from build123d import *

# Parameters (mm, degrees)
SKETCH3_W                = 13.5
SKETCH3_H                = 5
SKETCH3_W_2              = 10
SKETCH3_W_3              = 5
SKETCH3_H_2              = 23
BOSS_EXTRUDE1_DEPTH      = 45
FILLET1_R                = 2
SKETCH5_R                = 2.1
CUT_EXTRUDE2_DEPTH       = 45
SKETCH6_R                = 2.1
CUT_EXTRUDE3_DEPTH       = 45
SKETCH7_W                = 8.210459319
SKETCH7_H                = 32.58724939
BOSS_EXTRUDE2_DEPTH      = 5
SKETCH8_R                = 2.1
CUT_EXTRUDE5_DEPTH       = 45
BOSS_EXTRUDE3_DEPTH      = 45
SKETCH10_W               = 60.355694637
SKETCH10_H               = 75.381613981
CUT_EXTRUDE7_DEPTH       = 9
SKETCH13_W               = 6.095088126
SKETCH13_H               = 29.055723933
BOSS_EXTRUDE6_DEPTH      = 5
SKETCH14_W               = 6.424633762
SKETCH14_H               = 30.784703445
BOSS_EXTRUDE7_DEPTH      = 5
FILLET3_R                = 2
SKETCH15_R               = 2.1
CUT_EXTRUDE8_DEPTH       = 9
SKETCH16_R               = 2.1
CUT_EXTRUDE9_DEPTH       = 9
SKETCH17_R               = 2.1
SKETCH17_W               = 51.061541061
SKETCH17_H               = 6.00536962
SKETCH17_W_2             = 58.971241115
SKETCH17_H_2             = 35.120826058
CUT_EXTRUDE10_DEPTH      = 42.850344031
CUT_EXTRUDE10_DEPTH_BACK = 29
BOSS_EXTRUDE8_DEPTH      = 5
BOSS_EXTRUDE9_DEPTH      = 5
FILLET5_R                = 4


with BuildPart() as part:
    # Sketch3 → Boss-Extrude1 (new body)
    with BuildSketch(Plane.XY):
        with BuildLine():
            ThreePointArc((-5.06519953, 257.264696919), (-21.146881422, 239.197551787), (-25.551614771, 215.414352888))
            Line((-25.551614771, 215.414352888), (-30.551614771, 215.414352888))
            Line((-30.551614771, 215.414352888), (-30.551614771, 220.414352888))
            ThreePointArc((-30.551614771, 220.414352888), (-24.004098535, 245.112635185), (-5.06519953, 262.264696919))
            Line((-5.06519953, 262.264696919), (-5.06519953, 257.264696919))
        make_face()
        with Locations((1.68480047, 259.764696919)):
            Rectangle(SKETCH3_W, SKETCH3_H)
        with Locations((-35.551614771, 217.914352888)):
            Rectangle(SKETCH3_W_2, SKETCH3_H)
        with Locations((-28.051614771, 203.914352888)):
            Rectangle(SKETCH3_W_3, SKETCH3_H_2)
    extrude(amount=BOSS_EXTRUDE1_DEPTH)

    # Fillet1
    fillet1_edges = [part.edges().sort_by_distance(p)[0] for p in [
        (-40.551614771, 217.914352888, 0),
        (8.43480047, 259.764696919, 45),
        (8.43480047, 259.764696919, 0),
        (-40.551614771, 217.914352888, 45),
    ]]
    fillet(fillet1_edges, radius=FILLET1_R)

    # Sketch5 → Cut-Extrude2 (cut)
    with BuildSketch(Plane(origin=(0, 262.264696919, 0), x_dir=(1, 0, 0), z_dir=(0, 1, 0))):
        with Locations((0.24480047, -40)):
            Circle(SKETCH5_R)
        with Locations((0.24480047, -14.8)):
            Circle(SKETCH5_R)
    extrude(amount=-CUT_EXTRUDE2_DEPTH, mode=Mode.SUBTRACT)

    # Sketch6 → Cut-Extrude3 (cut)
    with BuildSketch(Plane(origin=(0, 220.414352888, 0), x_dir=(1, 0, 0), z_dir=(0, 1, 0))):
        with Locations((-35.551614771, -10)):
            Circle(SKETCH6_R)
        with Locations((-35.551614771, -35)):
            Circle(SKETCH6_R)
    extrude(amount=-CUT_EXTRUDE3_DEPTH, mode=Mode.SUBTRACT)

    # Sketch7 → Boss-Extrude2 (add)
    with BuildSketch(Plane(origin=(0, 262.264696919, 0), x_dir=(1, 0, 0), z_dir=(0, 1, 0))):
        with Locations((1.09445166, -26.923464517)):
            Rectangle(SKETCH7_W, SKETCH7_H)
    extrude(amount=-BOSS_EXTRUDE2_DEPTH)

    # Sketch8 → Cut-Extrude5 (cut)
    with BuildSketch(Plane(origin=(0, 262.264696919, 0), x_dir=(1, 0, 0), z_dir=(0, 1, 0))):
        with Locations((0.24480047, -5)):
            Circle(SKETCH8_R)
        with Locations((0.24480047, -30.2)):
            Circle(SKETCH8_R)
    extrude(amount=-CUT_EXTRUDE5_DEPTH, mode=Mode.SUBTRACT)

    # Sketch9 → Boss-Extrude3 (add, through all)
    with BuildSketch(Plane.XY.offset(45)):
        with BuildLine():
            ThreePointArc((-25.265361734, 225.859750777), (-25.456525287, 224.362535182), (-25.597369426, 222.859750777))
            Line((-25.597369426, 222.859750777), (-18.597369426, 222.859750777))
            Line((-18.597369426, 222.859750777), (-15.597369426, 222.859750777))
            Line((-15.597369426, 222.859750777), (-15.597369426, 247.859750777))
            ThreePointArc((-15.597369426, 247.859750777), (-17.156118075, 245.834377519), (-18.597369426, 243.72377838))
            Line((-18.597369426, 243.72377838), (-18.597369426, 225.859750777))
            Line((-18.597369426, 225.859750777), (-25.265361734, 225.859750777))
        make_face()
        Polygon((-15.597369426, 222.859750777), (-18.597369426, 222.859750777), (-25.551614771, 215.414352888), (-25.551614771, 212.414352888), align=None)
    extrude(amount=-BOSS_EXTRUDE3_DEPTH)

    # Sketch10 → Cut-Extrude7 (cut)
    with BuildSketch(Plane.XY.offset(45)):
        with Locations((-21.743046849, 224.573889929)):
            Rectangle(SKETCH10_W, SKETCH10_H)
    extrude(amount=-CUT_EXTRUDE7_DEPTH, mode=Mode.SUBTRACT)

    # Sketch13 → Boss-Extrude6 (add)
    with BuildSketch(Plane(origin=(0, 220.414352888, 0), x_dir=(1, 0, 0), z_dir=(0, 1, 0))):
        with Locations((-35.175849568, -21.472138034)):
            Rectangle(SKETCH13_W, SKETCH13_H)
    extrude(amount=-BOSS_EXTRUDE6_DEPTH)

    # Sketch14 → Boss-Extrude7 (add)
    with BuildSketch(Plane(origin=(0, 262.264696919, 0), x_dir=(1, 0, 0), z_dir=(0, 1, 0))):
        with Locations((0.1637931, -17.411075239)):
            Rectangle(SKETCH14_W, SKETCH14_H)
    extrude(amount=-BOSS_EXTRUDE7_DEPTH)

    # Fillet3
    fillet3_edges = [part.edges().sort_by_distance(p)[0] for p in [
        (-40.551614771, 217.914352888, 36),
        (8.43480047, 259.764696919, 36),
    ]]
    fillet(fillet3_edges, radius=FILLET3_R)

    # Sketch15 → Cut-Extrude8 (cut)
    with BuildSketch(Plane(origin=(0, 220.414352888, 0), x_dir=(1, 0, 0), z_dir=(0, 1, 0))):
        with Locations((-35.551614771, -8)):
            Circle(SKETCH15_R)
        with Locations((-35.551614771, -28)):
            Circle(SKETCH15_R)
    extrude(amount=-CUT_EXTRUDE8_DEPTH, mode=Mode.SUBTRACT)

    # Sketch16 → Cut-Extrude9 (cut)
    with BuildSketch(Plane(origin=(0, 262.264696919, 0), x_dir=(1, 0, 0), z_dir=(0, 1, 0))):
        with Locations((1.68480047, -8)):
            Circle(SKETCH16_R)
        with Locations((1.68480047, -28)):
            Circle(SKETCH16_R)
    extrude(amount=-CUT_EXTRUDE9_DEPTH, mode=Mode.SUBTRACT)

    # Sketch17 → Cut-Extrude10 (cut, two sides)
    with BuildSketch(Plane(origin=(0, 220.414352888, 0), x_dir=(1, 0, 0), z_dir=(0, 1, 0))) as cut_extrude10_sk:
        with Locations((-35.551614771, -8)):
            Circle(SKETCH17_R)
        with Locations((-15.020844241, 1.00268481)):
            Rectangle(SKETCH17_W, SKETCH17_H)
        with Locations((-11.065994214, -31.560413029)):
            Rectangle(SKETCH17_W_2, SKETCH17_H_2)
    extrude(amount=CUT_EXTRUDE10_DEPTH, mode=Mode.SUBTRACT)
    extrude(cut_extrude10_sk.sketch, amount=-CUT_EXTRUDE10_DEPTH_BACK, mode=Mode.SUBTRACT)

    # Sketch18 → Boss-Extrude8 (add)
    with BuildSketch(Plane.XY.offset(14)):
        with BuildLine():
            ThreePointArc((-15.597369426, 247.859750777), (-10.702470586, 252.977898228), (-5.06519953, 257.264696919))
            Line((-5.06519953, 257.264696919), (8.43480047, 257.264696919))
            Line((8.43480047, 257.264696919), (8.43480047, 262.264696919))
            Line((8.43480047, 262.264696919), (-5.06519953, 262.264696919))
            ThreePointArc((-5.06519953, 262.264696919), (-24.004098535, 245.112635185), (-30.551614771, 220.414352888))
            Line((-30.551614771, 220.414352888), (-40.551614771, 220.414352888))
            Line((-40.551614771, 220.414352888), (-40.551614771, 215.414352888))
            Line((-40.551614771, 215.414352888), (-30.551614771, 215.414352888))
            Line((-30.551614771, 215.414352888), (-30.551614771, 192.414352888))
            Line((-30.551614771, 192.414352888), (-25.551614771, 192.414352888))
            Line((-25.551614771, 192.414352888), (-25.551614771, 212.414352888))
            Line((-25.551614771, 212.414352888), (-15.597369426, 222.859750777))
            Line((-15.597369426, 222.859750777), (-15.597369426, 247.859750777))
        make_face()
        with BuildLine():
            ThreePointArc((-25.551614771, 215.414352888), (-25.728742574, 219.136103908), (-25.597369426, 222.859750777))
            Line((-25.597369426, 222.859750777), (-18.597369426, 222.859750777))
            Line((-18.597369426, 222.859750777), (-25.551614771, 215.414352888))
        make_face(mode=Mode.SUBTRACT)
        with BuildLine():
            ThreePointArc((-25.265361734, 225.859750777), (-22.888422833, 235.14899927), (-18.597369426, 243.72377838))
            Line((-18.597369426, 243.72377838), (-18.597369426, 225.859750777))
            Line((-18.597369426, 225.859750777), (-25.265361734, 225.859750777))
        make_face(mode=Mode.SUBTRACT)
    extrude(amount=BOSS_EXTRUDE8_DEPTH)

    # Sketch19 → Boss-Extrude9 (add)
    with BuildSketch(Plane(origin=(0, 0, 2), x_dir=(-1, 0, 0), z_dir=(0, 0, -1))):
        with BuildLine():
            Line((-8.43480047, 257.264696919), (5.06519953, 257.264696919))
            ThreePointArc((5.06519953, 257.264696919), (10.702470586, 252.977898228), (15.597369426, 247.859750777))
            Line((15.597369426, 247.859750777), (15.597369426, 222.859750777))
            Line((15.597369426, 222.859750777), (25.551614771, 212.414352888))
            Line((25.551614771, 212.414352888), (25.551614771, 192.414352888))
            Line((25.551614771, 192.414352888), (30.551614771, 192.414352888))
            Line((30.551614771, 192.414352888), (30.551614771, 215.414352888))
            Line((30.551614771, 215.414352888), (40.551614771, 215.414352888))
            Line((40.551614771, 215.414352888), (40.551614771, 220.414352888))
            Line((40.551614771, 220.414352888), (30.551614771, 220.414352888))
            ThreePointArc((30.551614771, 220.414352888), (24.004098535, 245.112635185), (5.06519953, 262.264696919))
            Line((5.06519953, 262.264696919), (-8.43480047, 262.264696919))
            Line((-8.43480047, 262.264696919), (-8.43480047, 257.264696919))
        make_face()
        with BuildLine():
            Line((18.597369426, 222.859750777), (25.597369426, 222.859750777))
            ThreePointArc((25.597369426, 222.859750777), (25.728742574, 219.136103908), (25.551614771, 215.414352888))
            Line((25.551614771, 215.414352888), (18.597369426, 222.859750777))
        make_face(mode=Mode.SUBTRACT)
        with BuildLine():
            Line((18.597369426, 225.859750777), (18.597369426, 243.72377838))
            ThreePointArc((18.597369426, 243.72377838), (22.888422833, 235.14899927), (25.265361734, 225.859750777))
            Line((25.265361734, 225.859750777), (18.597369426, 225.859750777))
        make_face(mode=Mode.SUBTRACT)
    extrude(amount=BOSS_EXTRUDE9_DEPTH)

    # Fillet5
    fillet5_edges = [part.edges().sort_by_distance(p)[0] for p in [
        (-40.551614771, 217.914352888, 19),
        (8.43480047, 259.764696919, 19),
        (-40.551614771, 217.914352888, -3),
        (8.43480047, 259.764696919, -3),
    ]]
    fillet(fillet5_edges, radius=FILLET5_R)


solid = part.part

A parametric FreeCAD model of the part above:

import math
import FreeCAD as App
import Part
import Sketcher

V = App.Vector
Q = App.Units.Quantity


def edges_at(feature, points):
    """Names of the edges that pass closest to the given points."""
    edges = feature.Shape.Edges
    near = lambda p: min(range(len(edges)), key=lambda i: edges[i].distToShape(Part.Vertex(*p))[0])
    return sorted({f"Edge{near(p) + 1}" for p in points})

doc = App.newDocument("Part")
body = doc.addObject("PartDesign::Body", "Body")

# Sketch on XY plane
sketch1 = body.newObject("Sketcher::SketchObject", "Sketch")
sketch1.AttachmentSupport = (doc.getObject("XY_Plane"), [""])
sketch1.MapMode = "FlatFace"
sketch1.addGeometry(Part.ArcOfCircle(Part.Circle(V(19.270408, 219.41264, 0), V(0, 0, 1), 45), math.radians(122.73752), math.radians(185.097499)), False)
sketch1.addGeometry(Part.LineSegment(V(-5.0652, 257.264697, 0), V(8.4348, 257.264697, 0)), False)
sketch1.addGeometry(Part.LineSegment(V(8.4348, 257.264697, 0), V(8.4348, 262.264697, 0)), False)
sketch1.addGeometry(Part.LineSegment(V(8.4348, 262.264697, 0), V(-5.0652, 262.264697, 0)), False)
sketch1.addGeometry(Part.ArcOfCircle(Part.Circle(V(14.429822, 221.706786, 0), V(0, 0, 1), 45), math.radians(115.672255), math.radians(181.645803)), False)
sketch1.addGeometry(Part.LineSegment(V(-30.551615, 220.414353, 0), V(-40.551615, 220.414353, 0)), False)
sketch1.addGeometry(Part.LineSegment(V(-40.551615, 220.414353, 0), V(-40.551615, 215.414353, 0)), False)
sketch1.addGeometry(Part.LineSegment(V(-40.551615, 215.414353, 0), V(-30.551615, 215.414353, 0)), False)
sketch1.addGeometry(Part.LineSegment(V(-30.551615, 215.414353, 0), V(-30.551615, 192.414353, 0)), False)
sketch1.addGeometry(Part.LineSegment(V(-30.551615, 192.414353, 0), V(-25.551615, 192.414353, 0)), False)
sketch1.addGeometry(Part.LineSegment(V(-25.551615, 192.414353, 0), V(-25.551615, 215.414353, 0)), False)
sketch1.addConstraint(Sketcher.Constraint("Coincident", 0, 1, 1, 1))
sketch1.addConstraint(Sketcher.Constraint("Coincident", 1, 2, 2, 1))
sketch1.addConstraint(Sketcher.Constraint("Coincident", 2, 2, 3, 1))
sketch1.addConstraint(Sketcher.Constraint("Coincident", 3, 2, 4, 1))
sketch1.addConstraint(Sketcher.Constraint("Coincident", 4, 2, 5, 1))
sketch1.addConstraint(Sketcher.Constraint("Coincident", 5, 2, 6, 1))
sketch1.addConstraint(Sketcher.Constraint("Coincident", 6, 2, 7, 1))
sketch1.addConstraint(Sketcher.Constraint("Coincident", 7, 2, 8, 1))
sketch1.addConstraint(Sketcher.Constraint("Coincident", 8, 2, 9, 1))
sketch1.addConstraint(Sketcher.Constraint("Coincident", 9, 2, 10, 1))
sketch1.addConstraint(Sketcher.Constraint("Coincident", 10, 2, 0, 2))
sketch1.addConstraint(Sketcher.Constraint("Horizontal", 1))
sketch1.addConstraint(Sketcher.Constraint("Vertical", 2))
sketch1.addConstraint(Sketcher.Constraint("Horizontal", 3))
sketch1.addConstraint(Sketcher.Constraint("Horizontal", 5))
sketch1.addConstraint(Sketcher.Constraint("Vertical", 6))
sketch1.addConstraint(Sketcher.Constraint("Horizontal", 7))
sketch1.addConstraint(Sketcher.Constraint("Vertical", 8))
sketch1.addConstraint(Sketcher.Constraint("Horizontal", 9))
sketch1.addConstraint(Sketcher.Constraint("Vertical", 10))
sketch1.addConstraint(Sketcher.Constraint("Equal", 0, 4))
sketch1.addConstraint(Sketcher.Constraint("Horizontal", 7, 2, 10, 2))
sketch1.addConstraint(Sketcher.Constraint("Vertical", 0, 1, 3, 2))
sketch1.addConstraint(Sketcher.Constraint("Vertical", 4, 2, 7, 2))
sketch1.addConstraint(Sketcher.Constraint("Equal", 9, 2))
sketch1.addConstraint(Sketcher.Constraint("Equal", 2, 6))
sketch1.addConstraint(Sketcher.Constraint("Radius", 0, Q("45 mm")))
sketch1.addConstraint(Sketcher.Constraint("DistanceX", 5, 2, 5, 1, Q("10 mm")))
sketch1.addConstraint(Sketcher.Constraint("DistanceX", 9, 1, 9, 2, Q("5 mm")))
sketch1.addConstraint(Sketcher.Constraint("DistanceY", 8, 2, 8, 1, Q("23 mm")))
sketch1.addConstraint(Sketcher.Constraint("DistanceX", 1, 1, 1, 2, Q("13.5 mm")))
sketch1.addConstraint(Sketcher.Constraint("DistanceX", 0, 1, -1, 1, Q("5.0652 mm")))
sketch1.addConstraint(Sketcher.Constraint("DistanceY", -1, 1, 0, 3, Q("219.41264 mm")))
sketch1.addConstraint(Sketcher.Constraint("DistanceX", -1, 1, 4, 3, Q("14.429822 mm")))
sketch1.addConstraint(Sketcher.Constraint("DistanceX", -1, 1, 0, 3, Q("19.270408 mm")))
pad1 = body.newObject("PartDesign::Pad", "Pad")
pad1.Profile = sketch1
pad1.Length = 45
doc.recompute()

fillet = body.newObject("PartDesign::Fillet", "Fillet")
fillet.Base = (pad1, edges_at(pad1, [
    (-40.552, 217.914, 0),
    (8.435, 259.765, 45),
    (8.435, 259.765, 0),
    (-40.552, 217.914, 45),
]))
fillet.Radius = 2

# Sketch on XZ plane
sketch2 = body.newObject("Sketcher::SketchObject", "Sketch001")
sketch2.AttachmentSupport = (doc.getObject("XZ_Plane"), [""])
sketch2.MapMode = "FlatFace"
sketch2.AttachmentOffset = App.Placement(V(0, 0, -262.264697), App.Rotation())
sketch2.addGeometry(Part.Circle(V(0.2448, 40, 0), V(0, 0, 1), 2.1), False)
sketch2.addGeometry(Part.Circle(V(0.2448, 14.8, 0), V(0, 0, 1), 2.1), False)
sketch2.addConstraint(Sketcher.Constraint("Equal", 0, 1))
sketch2.addConstraint(Sketcher.Constraint("Vertical", 0, 3, 1, 3))
sketch2.addConstraint(Sketcher.Constraint("Diameter", 0, Q("4.2 mm")))
sketch2.addConstraint(Sketcher.Constraint("DistanceY", -1, 1, 0, 3, Q("40 mm")))
sketch2.addConstraint(Sketcher.Constraint("DistanceY", -1, 1, 1, 3, Q("14.8 mm")))
sketch2.addConstraint(Sketcher.Constraint("DistanceX", -1, 1, 0, 3, Q("0.2448 mm")))
pocket1 = body.newObject("PartDesign::Pocket", "Pocket")
pocket1.Profile = sketch2
pocket1.Length = 45
pocket1.Reversed = True

# Sketch on XZ plane
sketch3 = body.newObject("Sketcher::SketchObject", "Sketch002")
sketch3.AttachmentSupport = (doc.getObject("XZ_Plane"), [""])
sketch3.MapMode = "FlatFace"
sketch3.AttachmentOffset = App.Placement(V(0, 0, -220.414353), App.Rotation())
sketch3.addGeometry(Part.Circle(V(-35.551615, 10, 0), V(0, 0, 1), 2.1), False)
sketch3.addGeometry(Part.Circle(V(-35.551615, 35, 0), V(0, 0, 1), 2.1), False)
sketch3.addConstraint(Sketcher.Constraint("Equal", 0, 1))
sketch3.addConstraint(Sketcher.Constraint("Vertical", 0, 3, 1, 3))
sketch3.addConstraint(Sketcher.Constraint("Diameter", 0, Q("4.2 mm")))
sketch3.addConstraint(Sketcher.Constraint("DistanceY", -1, 1, 0, 3, Q("10 mm")))
sketch3.addConstraint(Sketcher.Constraint("DistanceY", -1, 1, 1, 3, Q("35 mm")))
sketch3.addConstraint(Sketcher.Constraint("DistanceX", 0, 3, -1, 1, Q("35.551615 mm")))
pocket2 = body.newObject("PartDesign::Pocket", "Pocket001")
pocket2.Profile = sketch3
pocket2.Length = 45
pocket2.Reversed = True

# Sketch on XZ plane
sketch4 = body.newObject("Sketcher::SketchObject", "Sketch003")
sketch4.AttachmentSupport = (doc.getObject("XZ_Plane"), [""])
sketch4.MapMode = "FlatFace"
sketch4.AttachmentOffset = App.Placement(V(0, 0, -262.264697), App.Rotation())
sketch4.addGeometry(Part.LineSegment(V(-3.010778, 10.62984, 0), V(-3.010778, 43.217089, 0)), False)
sketch4.addGeometry(Part.LineSegment(V(-3.010778, 43.217089, 0), V(5.199681, 43.217089, 0)), False)
sketch4.addGeometry(Part.LineSegment(V(5.199681, 43.217089, 0), V(5.199681, 10.62984, 0)), False)
sketch4.addGeometry(Part.LineSegment(V(5.199681, 10.62984, 0), V(-3.010778, 10.62984, 0)), False)
sketch4.addConstraint(Sketcher.Constraint("Coincident", 0, 2, 1, 1))
sketch4.addConstraint(Sketcher.Constraint("Coincident", 1, 2, 2, 1))
sketch4.addConstraint(Sketcher.Constraint("Coincident", 2, 2, 3, 1))
sketch4.addConstraint(Sketcher.Constraint("Coincident", 3, 2, 0, 1))
sketch4.addConstraint(Sketcher.Constraint("Vertical", 0))
sketch4.addConstraint(Sketcher.Constraint("Horizontal", 1))
sketch4.addConstraint(Sketcher.Constraint("Vertical", 2))
sketch4.addConstraint(Sketcher.Constraint("Horizontal", 3))
sketch4.addConstraint(Sketcher.Constraint("DistanceX", 1, 1, 1, 2, Q("8.210459 mm")))
sketch4.addConstraint(Sketcher.Constraint("DistanceY", 0, 1, 0, 2, Q("32.587249 mm")))
sketch4.addConstraint(Sketcher.Constraint("DistanceX", 0, 2, -1, 1, Q("3.010778 mm")))
sketch4.addConstraint(Sketcher.Constraint("DistanceY", -1, 1, 0, 2, Q("43.217089 mm")))
pad2 = body.newObject("PartDesign::Pad", "Pad001")
pad2.Profile = sketch4
pad2.Length = 5

# Sketch on XZ plane
sketch5 = body.newObject("Sketcher::SketchObject", "Sketch004")
sketch5.AttachmentSupport = (doc.getObject("XZ_Plane"), [""])
sketch5.MapMode = "FlatFace"
sketch5.AttachmentOffset = App.Placement(V(0, 0, -262.264697), App.Rotation())
sketch5.addGeometry(Part.Circle(V(0.2448, 5, 0), V(0, 0, 1), 2.1), False)
sketch5.addGeometry(Part.Circle(V(0.2448, 30.2, 0), V(0, 0, 1), 2.1), False)
sketch5.addConstraint(Sketcher.Constraint("Equal", 0, 1))
sketch5.addConstraint(Sketcher.Constraint("Vertical", 0, 3, 1, 3))
sketch5.addConstraint(Sketcher.Constraint("Diameter", 0, Q("4.2 mm")))
sketch5.addConstraint(Sketcher.Constraint("DistanceY", -1, 1, 0, 3, Q("5 mm")))
sketch5.addConstraint(Sketcher.Constraint("DistanceY", -1, 1, 1, 3, Q("30.2 mm")))
sketch5.addConstraint(Sketcher.Constraint("DistanceX", -1, 1, 0, 3, Q("0.2448 mm")))
pocket3 = body.newObject("PartDesign::Pocket", "Pocket002")
pocket3.Profile = sketch5
pocket3.Length = 45
pocket3.Reversed = True

# Sketch on XY plane
sketch6 = body.newObject("Sketcher::SketchObject", "Sketch005")
sketch6.AttachmentSupport = (doc.getObject("XY_Plane"), [""])
sketch6.MapMode = "FlatFace"
sketch6.AttachmentOffset = App.Placement(V(0, 0, 45), App.Rotation())
sketch6.addGeometry(Part.ArcOfCircle(Part.Circle(V(19.270407, 219.41264, 0), V(0, 0, 1), 44.999999), math.radians(171.762939), math.radians(175.606698)), False)
sketch6.addGeometry(Part.LineSegment(V(-25.597369, 222.859751, 0), V(-18.597369, 222.859751, 0)), False)
sketch6.addGeometry(Part.LineSegment(V(-18.597369, 222.859751, 0), V(-25.551615, 215.414353, 0)), False)
sketch6.addGeometry(Part.LineSegment(V(-25.551615, 215.414353, 0), V(-25.551615, 212.414353, 0)), False)
sketch6.addGeometry(Part.LineSegment(V(-25.551615, 212.414353, 0), V(-15.597369, 222.859751, 0)), False)
sketch6.addGeometry(Part.LineSegment(V(-15.597369, 222.859751, 0), V(-15.597369, 247.859751, 0)), False)
sketch6.addGeometry(Part.ArcOfCircle(Part.Circle(V(19.270408, 219.41264, 0), V(0, 0, 1), 45), math.radians(140.790483), math.radians(147.29951)), False)
sketch6.addGeometry(Part.LineSegment(V(-18.597369, 243.723778, 0), V(-18.597369, 225.859751, 0)), False)
sketch6.addGeometry(Part.LineSegment(V(-18.597369, 225.859751, 0), V(-25.265362, 225.859751, 0)), False)
sketch6.addConstraint(Sketcher.Constraint("Coincident", 0, 2, 1, 1))
sketch6.addConstraint(Sketcher.Constraint("Coincident", 1, 2, 2, 1))
sketch6.addConstraint(Sketcher.Constraint("Coincident", 2, 2, 3, 1))
sketch6.addConstraint(Sketcher.Constraint("Coincident", 3, 2, 4, 1))
sketch6.addConstraint(Sketcher.Constraint("Coincident", 4, 2, 5, 1))
sketch6.addConstraint(Sketcher.Constraint("Coincident", 5, 2, 6, 1))
sketch6.addConstraint(Sketcher.Constraint("Coincident", 6, 2, 7, 1))
sketch6.addConstraint(Sketcher.Constraint("Coincident", 7, 2, 8, 1))
sketch6.addConstraint(Sketcher.Constraint("Coincident", 8, 2, 0, 1))
sketch6.addConstraint(Sketcher.Constraint("Horizontal", 1))
sketch6.addConstraint(Sketcher.Constraint("Vertical", 3))
sketch6.addConstraint(Sketcher.Constraint("Vertical", 5))
sketch6.addConstraint(Sketcher.Constraint("Vertical", 7))
sketch6.addConstraint(Sketcher.Constraint("Horizontal", 8))
sketch6.addConstraint(Sketcher.Constraint("Coincident", 6, 3, 0, 3))
sketch6.addConstraint(Sketcher.Constraint("Equal", 0, 6))
sketch6.addConstraint(Sketcher.Constraint("Horizontal", 1, 2, 4, 2))
sketch6.addConstraint(Sketcher.Constraint("Vertical", 1, 2, 6, 2))
sketch6.addConstraint(Sketcher.Constraint("Radius", 0, Q("44.999999 mm")))
sketch6.addConstraint(Sketcher.Constraint("DistanceX", 1, 1, 1, 2, Q("7 mm")))
sketch6.addConstraint(Sketcher.Constraint("DistanceY", 3, 2, 3, 1, Q("3 mm")))
sketch6.addConstraint(Sketcher.Constraint("DistanceY", 5, 1, 5, 2, Q("25 mm")))
sketch6.addConstraint(Sketcher.Constraint("DistanceX", 1, 2, 4, 2, Q("3 mm")))
sketch6.addConstraint(Sketcher.Constraint("DistanceY", 1, 2, 7, 2, Q("3 mm")))
sketch6.addConstraint(Sketcher.Constraint("DistanceY", -1, 1, 0, 3, Q("219.41264 mm")))
sketch6.addConstraint(Sketcher.Constraint("DistanceX", 0, 2, -1, 1, Q("25.597369 mm")))
sketch6.addConstraint(Sketcher.Constraint("DistanceX", 2, 2, 0, 3, Q("44.822022 mm")))
sketch6.addConstraint(Sketcher.Constraint("Distance", 2, Q("10.188007 mm")))
pad3 = body.newObject("PartDesign::Pad", "Pad002")
pad3.Profile = sketch6
pad3.Length = 45
pad3.Reversed = True

# Sketch on XY plane
sketch7 = body.newObject("Sketcher::SketchObject", "Sketch006")
sketch7.AttachmentSupport = (doc.getObject("XY_Plane"), [""])
sketch7.MapMode = "FlatFace"
sketch7.AttachmentOffset = App.Placement(V(0, 0, 45), App.Rotation())
sketch7.addGeometry(Part.LineSegment(V(-51.920894, 262.264697, 0), V(-51.920894, 186.883083, 0)), False)
sketch7.addGeometry(Part.LineSegment(V(-51.920894, 186.883083, 0), V(8.4348, 186.883083, 0)), False)
sketch7.addGeometry(Part.LineSegment(V(8.4348, 186.883083, 0), V(8.4348, 262.264697, 0)), False)
sketch7.addGeometry(Part.LineSegment(V(8.4348, 262.264697, 0), V(-51.920894, 262.264697, 0)), False)
sketch7.addConstraint(Sketcher.Constraint("Coincident", 0, 2, 1, 1))
sketch7.addConstraint(Sketcher.Constraint("Coincident", 1, 2, 2, 1))
sketch7.addConstraint(Sketcher.Constraint("Coincident", 2, 2, 3, 1))
sketch7.addConstraint(Sketcher.Constraint("Coincident", 3, 2, 0, 1))
sketch7.addConstraint(Sketcher.Constraint("Vertical", 0))
sketch7.addConstraint(Sketcher.Constraint("Horizontal", 1))
sketch7.addConstraint(Sketcher.Constraint("Vertical", 2))
sketch7.addConstraint(Sketcher.Constraint("Horizontal", 3))
sketch7.addConstraint(Sketcher.Constraint("DistanceX", -1, 1, 1, 2, Q("8.4348 mm")))
sketch7.addConstraint(Sketcher.Constraint("DistanceX", 1, 1, 1, 2, Q("60.355695 mm")))
sketch7.addConstraint(Sketcher.Constraint("DistanceY", 0, 2, 0, 1, Q("75.381614 mm")))
sketch7.addConstraint(Sketcher.Constraint("DistanceY", -1, 1, 0, 2, Q("186.883083 mm")))
pocket4 = body.newObject("PartDesign::Pocket", "Pocket003")
pocket4.Profile = sketch7
pocket4.Length = 9

# Sketch on XZ plane
sketch8 = body.newObject("Sketcher::SketchObject", "Sketch007")
sketch8.AttachmentSupport = (doc.getObject("XZ_Plane"), [""])
sketch8.MapMode = "FlatFace"
sketch8.AttachmentOffset = App.Placement(V(0, 0, -220.414353), App.Rotation())
sketch8.addGeometry(Part.LineSegment(V(-38.223394, 6.944276, 0), V(-38.223394, 36, 0)), False)
sketch8.addGeometry(Part.LineSegment(V(-38.223394, 36, 0), V(-32.128306, 36, 0)), False)
sketch8.addGeometry(Part.LineSegment(V(-32.128306, 36, 0), V(-32.128306, 6.944276, 0)), False)
sketch8.addGeometry(Part.LineSegment(V(-32.128306, 6.944276, 0), V(-38.223394, 6.944276, 0)), False)
sketch8.addConstraint(Sketcher.Constraint("Coincident", 0, 2, 1, 1))
sketch8.addConstraint(Sketcher.Constraint("Coincident", 1, 2, 2, 1))
sketch8.addConstraint(Sketcher.Constraint("Coincident", 2, 2, 3, 1))
sketch8.addConstraint(Sketcher.Constraint("Coincident", 3, 2, 0, 1))
sketch8.addConstraint(Sketcher.Constraint("Vertical", 0))
sketch8.addConstraint(Sketcher.Constraint("Horizontal", 1))
sketch8.addConstraint(Sketcher.Constraint("Vertical", 2))
sketch8.addConstraint(Sketcher.Constraint("Horizontal", 3))
sketch8.addConstraint(Sketcher.Constraint("DistanceY", -1, 1, 0, 2, Q("36 mm")))
sketch8.addConstraint(Sketcher.Constraint("DistanceX", 1, 1, 1, 2, Q("6.095088 mm")))
sketch8.addConstraint(Sketcher.Constraint("DistanceY", 0, 1, 0, 2, Q("29.055724 mm")))
sketch8.addConstraint(Sketcher.Constraint("DistanceX", 0, 2, -1, 1, Q("38.223394 mm")))
pad4 = body.newObject("PartDesign::Pad", "Pad003")
pad4.Profile = sketch8
pad4.Length = 5

# Sketch on XZ plane
sketch9 = body.newObject("Sketcher::SketchObject", "Sketch008")
sketch9.AttachmentSupport = (doc.getObject("XZ_Plane"), [""])
sketch9.MapMode = "FlatFace"
sketch9.AttachmentOffset = App.Placement(V(0, 0, -262.264697), App.Rotation())
sketch9.addGeometry(Part.LineSegment(V(-3.048524, 2.018724, 0), V(-3.048524, 32.803427, 0)), False)
sketch9.addGeometry(Part.LineSegment(V(-3.048524, 32.803427, 0), V(3.37611, 32.803427, 0)), False)
sketch9.addGeometry(Part.LineSegment(V(3.37611, 32.803427, 0), V(3.37611, 2.018724, 0)), False)
sketch9.addGeometry(Part.LineSegment(V(3.37611, 2.018724, 0), V(-3.048524, 2.018724, 0)), False)
sketch9.addConstraint(Sketcher.Constraint("Coincident", 0, 2, 1, 1))
sketch9.addConstraint(Sketcher.Constraint("Coincident", 1, 2, 2, 1))
sketch9.addConstraint(Sketcher.Constraint("Coincident", 2, 2, 3, 1))
sketch9.addConstraint(Sketcher.Constraint("Coincident", 3, 2, 0, 1))
sketch9.addConstraint(Sketcher.Constraint("Vertical", 0))
sketch9.addConstraint(Sketcher.Constraint("Horizontal", 1))
sketch9.addConstraint(Sketcher.Constraint("Vertical", 2))
sketch9.addConstraint(Sketcher.Constraint("Horizontal", 3))
sketch9.addConstraint(Sketcher.Constraint("DistanceX", 1, 1, 1, 2, Q("6.424634 mm")))
sketch9.addConstraint(Sketcher.Constraint("DistanceY", 0, 1, 0, 2, Q("30.784703 mm")))
sketch9.addConstraint(Sketcher.Constraint("DistanceX", -1, 1, 1, 2, Q("3.37611 mm")))
sketch9.addConstraint(Sketcher.Constraint("DistanceY", -1, 1, 0, 2, Q("32.803427 mm")))
pad5 = body.newObject("PartDesign::Pad", "Pad004")
pad5.Profile = sketch9
pad5.Length = 5
doc.recompute()

fillet2 = body.newObject("PartDesign::Fillet", "Fillet001")
fillet2.Base = (pad5, edges_at(pad5, [(-40.552, 217.914, 36), (8.435, 259.765, 36)]))
fillet2.Radius = 2

# Sketch on XZ plane
sketch10 = body.newObject("Sketcher::SketchObject", "Sketch009")
sketch10.AttachmentSupport = (doc.getObject("XZ_Plane"), [""])
sketch10.MapMode = "FlatFace"
sketch10.AttachmentOffset = App.Placement(V(0, 0, -220.414353), App.Rotation())
sketch10.addGeometry(Part.Circle(V(-35.551615, 8, 0), V(0, 0, 1), 2.1), False)
sketch10.addGeometry(Part.Circle(V(-35.551615, 28, 0), V(0, 0, 1), 2.1), False)
sketch10.addConstraint(Sketcher.Constraint("Equal", 0, 1))
sketch10.addConstraint(Sketcher.Constraint("Vertical", 0, 3, 1, 3))
sketch10.addConstraint(Sketcher.Constraint("Diameter", 0, Q("4.2 mm")))
sketch10.addConstraint(Sketcher.Constraint("DistanceY", -1, 1, 0, 3, Q("8 mm")))
sketch10.addConstraint(Sketcher.Constraint("DistanceY", -1, 1, 1, 3, Q("28 mm")))
sketch10.addConstraint(Sketcher.Constraint("DistanceX", 0, 3, -1, 1, Q("35.551615 mm")))
pocket5 = body.newObject("PartDesign::Pocket", "Pocket004")
pocket5.Profile = sketch10
pocket5.Length = 9
pocket5.Reversed = True

# Sketch on XZ plane
sketch11 = body.newObject("Sketcher::SketchObject", "Sketch010")
sketch11.AttachmentSupport = (doc.getObject("XZ_Plane"), [""])
sketch11.MapMode = "FlatFace"
sketch11.AttachmentOffset = App.Placement(V(0, 0, -262.264697), App.Rotation())
sketch11.addGeometry(Part.Circle(V(1.6848, 8, 0), V(0, 0, 1), 2.1), False)
sketch11.addGeometry(Part.Circle(V(1.6848, 28, 0), V(0, 0, 1), 2.1), False)
sketch11.addConstraint(Sketcher.Constraint("Equal", 0, 1))
sketch11.addConstraint(Sketcher.Constraint("Vertical", 0, 3, 1, 3))
sketch11.addConstraint(Sketcher.Constraint("Diameter", 0, Q("4.2 mm")))
sketch11.addConstraint(Sketcher.Constraint("DistanceY", -1, 1, 0, 3, Q("8 mm")))
sketch11.addConstraint(Sketcher.Constraint("DistanceY", -1, 1, 1, 3, Q("28 mm")))
sketch11.addConstraint(Sketcher.Constraint("DistanceX", -1, 1, 0, 3, Q("1.6848 mm")))
pocket6 = body.newObject("PartDesign::Pocket", "Pocket005")
pocket6.Profile = sketch11
pocket6.Length = 9
pocket6.Reversed = True

# Sketch on XZ plane
sketch12 = body.newObject("Sketcher::SketchObject", "Sketch011")
sketch12.AttachmentSupport = (doc.getObject("XZ_Plane"), [""])
sketch12.MapMode = "FlatFace"
sketch12.AttachmentOffset = App.Placement(V(0, 0, -220.414353), App.Rotation())
sketch12.addGeometry(Part.Circle(V(-35.551615, 8, 0), V(0, 0, 1), 2.1), False)
sketch12.addGeometry(Part.LineSegment(V(-40.551615, -4.00537, 0), V(-40.551615, 2, 0)), False)
sketch12.addGeometry(Part.LineSegment(V(-40.551615, 2, 0), V(10.509926, 2, 0)), False)
sketch12.addGeometry(Part.LineSegment(V(10.509926, 2, 0), V(10.509926, -4.00537, 0)), False)
sketch12.addGeometry(Part.LineSegment(V(10.509926, -4.00537, 0), V(-40.551615, -4.00537, 0)), False)
sketch12.addGeometry(Part.LineSegment(V(-40.551615, 14, 0), V(-40.551615, 49.120826, 0)), False)
sketch12.addGeometry(Part.LineSegment(V(-40.551615, 49.120826, 0), V(18.419626, 49.120826, 0)), False)
sketch12.addGeometry(Part.LineSegment(V(18.419626, 49.120826, 0), V(18.419626, 14, 0)), False)
sketch12.addGeometry(Part.LineSegment(V(18.419626, 14, 0), V(-40.551615, 14, 0)), False)
sketch12.addConstraint(Sketcher.Constraint("Coincident", 1, 2, 2, 1))
sketch12.addConstraint(Sketcher.Constraint("Coincident", 2, 2, 3, 1))
sketch12.addConstraint(Sketcher.Constraint("Coincident", 3, 2, 4, 1))
sketch12.addConstraint(Sketcher.Constraint("Coincident", 4, 2, 1, 1))
sketch12.addConstraint(Sketcher.Constraint("Coincident", 5, 2, 6, 1))
sketch12.addConstraint(Sketcher.Constraint("Coincident", 6, 2, 7, 1))
sketch12.addConstraint(Sketcher.Constraint("Coincident", 7, 2, 8, 1))
sketch12.addConstraint(Sketcher.Constraint("Coincident", 8, 2, 5, 1))
sketch12.addConstraint(Sketcher.Constraint("Vertical", 1))
sketch12.addConstraint(Sketcher.Constraint("Horizontal", 2))
sketch12.addConstraint(Sketcher.Constraint("Vertical", 3))
sketch12.addConstraint(Sketcher.Constraint("Horizontal", 4))
sketch12.addConstraint(Sketcher.Constraint("Vertical", 5))
sketch12.addConstraint(Sketcher.Constraint("Horizontal", 6))
sketch12.addConstraint(Sketcher.Constraint("Vertical", 7))
sketch12.addConstraint(Sketcher.Constraint("Horizontal", 8))
sketch12.addConstraint(Sketcher.Constraint("Vertical", 4, 2, 5, 2))
sketch12.addConstraint(Sketcher.Constraint("Diameter", 0, Q("4.2 mm")))
sketch12.addConstraint(Sketcher.Constraint("DistanceY", -1, 1, 0, 3, Q("8 mm")))
sketch12.addConstraint(Sketcher.Constraint("DistanceY", -1, 1, 1, 2, Q("2 mm")))
sketch12.addConstraint(Sketcher.Constraint("DistanceY", -1, 1, 7, 2, Q("14 mm")))
sketch12.addConstraint(Sketcher.Constraint("DistanceX", 1, 2, 0, 3, Q("5 mm")))
sketch12.addConstraint(Sketcher.Constraint("DistanceX", 2, 1, 2, 2, Q("51.061541 mm")))
sketch12.addConstraint(Sketcher.Constraint("DistanceX", 6, 1, 6, 2, Q("58.971241 mm")))
sketch12.addConstraint(Sketcher.Constraint("DistanceY", 1, 1, 1, 2, Q("6.00537 mm")))
sketch12.addConstraint(Sketcher.Constraint("DistanceY", 5, 1, 5, 2, Q("35.120826 mm")))
sketch12.addConstraint(Sketcher.Constraint("DistanceX", 0, 3, -1, 1, Q("35.551615 mm")))
pocket7 = body.newObject("PartDesign::Pocket", "Pocket006")
pocket7.Profile = sketch12
pocket7.Type = "ThroughAll"
pocket7.Midplane = True

# Sketch on XY plane
sketch13 = body.newObject("Sketcher::SketchObject", "Sketch012")
sketch13.AttachmentSupport = (doc.getObject("XY_Plane"), [""])
sketch13.MapMode = "FlatFace"
sketch13.AttachmentOffset = App.Placement(V(0, 0, 14), App.Rotation())
sketch13.addGeometry(Part.ArcOfCircle(Part.Circle(V(19.270408, 219.41264, 0), V(0, 0, 1), 45), math.radians(122.73752), math.radians(140.790483)), False)
sketch13.addGeometry(Part.LineSegment(V(-5.0652, 257.264697, 0), V(8.4348, 257.264697, 0)), False)
sketch13.addGeometry(Part.LineSegment(V(8.4348, 257.264697, 0), V(8.4348, 262.264697, 0)), False)
sketch13.addGeometry(Part.LineSegment(V(8.4348, 262.264697, 0), V(-5.0652, 262.264697, 0)), False)
sketch13.addGeometry(Part.ArcOfCircle(Part.Circle(V(14.429822, 221.706786, 0), V(0, 0, 1), 45), math.radians(115.672255), math.radians(181.645803)), False)
sketch13.addGeometry(Part.LineSegment(V(-30.551615, 220.414353, 0), V(-40.551615, 220.414353, 0)), False)
sketch13.addGeometry(Part.LineSegment(V(-40.551615, 220.414353, 0), V(-40.551615, 215.414353, 0)), False)
sketch13.addGeometry(Part.LineSegment(V(-40.551615, 215.414353, 0), V(-30.551615, 215.414353, 0)), False)
sketch13.addGeometry(Part.LineSegment(V(-30.551615, 215.414353, 0), V(-30.551615, 192.414353, 0)), False)
sketch13.addGeometry(Part.LineSegment(V(-30.551615, 192.414353, 0), V(-25.551615, 192.414353, 0)), False)
sketch13.addGeometry(Part.LineSegment(V(-25.551615, 192.414353, 0), V(-25.551615, 212.414353, 0)), False)
sketch13.addGeometry(Part.LineSegment(V(-25.551615, 212.414353, 0), V(-15.597369, 222.859751, 0)), False)
sketch13.addGeometry(Part.LineSegment(V(-15.597369, 222.859751, 0), V(-15.597369, 247.859751, 0)), False)
sketch13.addGeometry(Part.LineSegment(V(-18.597369, 222.859751, 0), V(-25.551615, 215.414353, 0)), False)
sketch13.addGeometry(Part.ArcOfCircle(Part.Circle(V(19.270408, 219.41264, 0), V(0, 0, 1), 45), math.radians(175.606698), math.radians(185.097499)), False)
sketch13.addGeometry(Part.LineSegment(V(-25.597369, 222.859751, 0), V(-18.597369, 222.859751, 0)), False)
sketch13.addGeometry(Part.LineSegment(V(-18.597369, 225.859751, 0), V(-25.265362, 225.859751, 0)), False)
sketch13.addGeometry(Part.ArcOfCircle(Part.Circle(V(19.270408, 219.41264, 0), V(0, 0, 1), 45), math.radians(147.29951), math.radians(171.762939)), False)
sketch13.addGeometry(Part.LineSegment(V(-18.597369, 243.723778, 0), V(-18.597369, 225.859751, 0)), False)
sketch13.addConstraint(Sketcher.Constraint("Coincident", 0, 1, 1, 1))
sketch13.addConstraint(Sketcher.Constraint("Coincident", 1, 2, 2, 1))
sketch13.addConstraint(Sketcher.Constraint("Coincident", 2, 2, 3, 1))
sketch13.addConstraint(Sketcher.Constraint("Coincident", 3, 2, 4, 1))
sketch13.addConstraint(Sketcher.Constraint("Coincident", 4, 2, 5, 1))
sketch13.addConstraint(Sketcher.Constraint("Coincident", 5, 2, 6, 1))
sketch13.addConstraint(Sketcher.Constraint("Coincident", 6, 2, 7, 1))
sketch13.addConstraint(Sketcher.Constraint("Coincident", 7, 2, 8, 1))
sketch13.addConstraint(Sketcher.Constraint("Coincident", 8, 2, 9, 1))
sketch13.addConstraint(Sketcher.Constraint("Coincident", 9, 2, 10, 1))
sketch13.addConstraint(Sketcher.Constraint("Coincident", 10, 2, 11, 1))
sketch13.addConstraint(Sketcher.Constraint("Coincident", 11, 2, 12, 1))
sketch13.addConstraint(Sketcher.Constraint("Coincident", 12, 2, 0, 2))
sketch13.addConstraint(Sketcher.Constraint("Coincident", 13, 2, 14, 2))
sketch13.addConstraint(Sketcher.Constraint("Coincident", 14, 1, 15, 1))
sketch13.addConstraint(Sketcher.Constraint("Coincident", 15, 2, 13, 1))
sketch13.addConstraint(Sketcher.Constraint("Coincident", 16, 2, 17, 2))
sketch13.addConstraint(Sketcher.Constraint("Coincident", 17, 1, 18, 1))
sketch13.addConstraint(Sketcher.Constraint("Coincident", 18, 2, 16, 1))
sketch13.addConstraint(Sketcher.Constraint("Horizontal", 1))
sketch13.addConstraint(Sketcher.Constraint("Vertical", 2))
sketch13.addConstraint(Sketcher.Constraint("Horizontal", 3))
sketch13.addConstraint(Sketcher.Constraint("Horizontal", 5))
sketch13.addConstraint(Sketcher.Constraint("Vertical", 6))
sketch13.addConstraint(Sketcher.Constraint("Horizontal", 7))
sketch13.addConstraint(Sketcher.Constraint("Vertical", 8))
sketch13.addConstraint(Sketcher.Constraint("Horizontal", 9))
sketch13.addConstraint(Sketcher.Constraint("Vertical", 10))
sketch13.addConstraint(Sketcher.Constraint("Vertical", 12))
sketch13.addConstraint(Sketcher.Constraint("Horizontal", 15))
sketch13.addConstraint(Sketcher.Constraint("Horizontal", 16))
sketch13.addConstraint(Sketcher.Constraint("Vertical", 18))
sketch13.addConstraint(Sketcher.Constraint("Coincident", 14, 3, 0, 3))
sketch13.addConstraint(Sketcher.Constraint("Coincident", 17, 3, 0, 3))
sketch13.addConstraint(Sketcher.Constraint("Equal", 0, 4))
sketch13.addConstraint(Sketcher.Constraint("Equal", 4, 14))
sketch13.addConstraint(Sketcher.Constraint("Equal", 14, 17))
sketch13.addConstraint(Sketcher.Constraint("Horizontal", 7, 2, 13, 2))
sketch13.addConstraint(Sketcher.Constraint("Horizontal", 11, 2, 14, 1))
sketch13.addConstraint(Sketcher.Constraint("Vertical", 0, 1, 3, 2))
sketch13.addConstraint(Sketcher.Constraint("Vertical", 4, 2, 7, 2))
sketch13.addConstraint(Sketcher.Constraint("Vertical", 10, 2, 13, 2))
sketch13.addConstraint(Sketcher.Constraint("Vertical", 15, 2, 17, 1))
sketch13.addConstraint(Sketcher.Constraint("Equal", 9, 2))
sketch13.addConstraint(Sketcher.Constraint("Equal", 2, 6))
sketch13.addConstraint(Sketcher.Constraint("Radius", 0, Q("45 mm")))
sketch13.addConstraint(Sketcher.Constraint("DistanceX", 5, 2, 5, 1, Q("10 mm")))
sketch13.addConstraint(Sketcher.Constraint("DistanceX", 9, 1, 9, 2, Q("5 mm")))
sketch13.addConstraint(Sketcher.Constraint("DistanceX", 15, 1, 15, 2, Q("7 mm")))
sketch13.addConstraint(Sketcher.Constraint("DistanceY", 8, 2, 8, 1, Q("23 mm")))
sketch13.addConstraint(Sketcher.Constraint("DistanceY", 10, 1, 10, 2, Q("20 mm")))
sketch13.addConstraint(Sketcher.Constraint("DistanceY", 12, 1, 12, 2, Q("25 mm")))
sketch13.addConstraint(Sketcher.Constraint("DistanceX", 1, 1, 1, 2, Q("13.5 mm")))
sketch13.addConstraint(Sketcher.Constraint("DistanceX", 14, 1, 11, 2, Q("10 mm")))
sketch13.addConstraint(Sketcher.Constraint("DistanceY", 14, 1, 16, 2, Q("3 mm")))
sketch13.addConstraint(Sketcher.Constraint("DistanceX", 0, 1, -1, 1, Q("5.0652 mm")))
sketch13.addConstraint(Sketcher.Constraint("DistanceY", -1, 1, 0, 3, Q("219.41264 mm")))
sketch13.addConstraint(Sketcher.Constraint("DistanceX", -1, 1, 4, 3, Q("14.429822 mm")))
sketch13.addConstraint(Sketcher.Constraint("DistanceX", 11, 2, -1, 1, Q("15.597369 mm")))
pad6 = body.newObject("PartDesign::Pad", "Pad005")
pad6.Profile = sketch13
pad6.Length = 5

# Sketch on XY plane
sketch14 = body.newObject("Sketcher::SketchObject", "Sketch013")
sketch14.AttachmentSupport = (doc.getObject("XY_Plane"), [""])
sketch14.MapMode = "FlatFace"
sketch14.AttachmentOffset = App.Placement(V(0, 0, 2), App.Rotation())
sketch14.addGeometry(Part.LineSegment(V(8.4348, 257.264697, 0), V(-5.0652, 257.264697, 0)), False)
sketch14.addGeometry(Part.ArcOfCircle(Part.Circle(V(19.270408, 219.41264, 0), V(0, 0, 1), 45), math.radians(122.73752), math.radians(140.790483)), False)
sketch14.addGeometry(Part.LineSegment(V(-15.597369, 247.859751, 0), V(-15.597369, 222.859751, 0)), False)
sketch14.addGeometry(Part.LineSegment(V(-15.597369, 222.859751, 0), V(-25.551615, 212.414353, 0)), False)
sketch14.addGeometry(Part.LineSegment(V(-25.551615, 212.414353, 0), V(-25.551615, 192.414353, 0)), False)
sketch14.addGeometry(Part.LineSegment(V(-25.551615, 192.414353, 0), V(-30.551615, 192.414353, 0)), False)
sketch14.addGeometry(Part.LineSegment(V(-30.551615, 192.414353, 0), V(-30.551615, 215.414353, 0)), False)
sketch14.addGeometry(Part.LineSegment(V(-30.551615, 215.414353, 0), V(-40.551615, 215.414353, 0)), False)
sketch14.addGeometry(Part.LineSegment(V(-40.551615, 215.414353, 0), V(-40.551615, 220.414353, 0)), False)
sketch14.addGeometry(Part.LineSegment(V(-40.551615, 220.414353, 0), V(-30.551615, 220.414353, 0)), False)
sketch14.addGeometry(Part.ArcOfCircle(Part.Circle(V(14.429822, 221.706786, 0), V(0, 0, 1), 45), math.radians(115.672255), math.radians(181.645803)), False)
sketch14.addGeometry(Part.LineSegment(V(-5.0652, 262.264697, 0), V(8.4348, 262.264697, 0)), False)
sketch14.addGeometry(Part.LineSegment(V(8.4348, 262.264697, 0), V(8.4348, 257.264697, 0)), False)
sketch14.addGeometry(Part.LineSegment(V(-25.551615, 215.414353, 0), V(-18.597369, 222.859751, 0)), False)
sketch14.addGeometry(Part.LineSegment(V(-18.597369, 222.859751, 0), V(-25.597369, 222.859751, 0)), False)
sketch14.addGeometry(Part.ArcOfCircle(Part.Circle(V(19.270408, 219.41264, 0), V(0, 0, 1), 45), math.radians(175.606698), math.radians(185.097499)), False)
sketch14.addGeometry(Part.LineSegment(V(-25.265362, 225.859751, 0), V(-18.597369, 225.859751, 0)), False)
sketch14.addGeometry(Part.LineSegment(V(-18.597369, 225.859751, 0), V(-18.597369, 243.723778, 0)), False)
sketch14.addGeometry(Part.ArcOfCircle(Part.Circle(V(19.270408, 219.41264, 0), V(0, 0, 1), 45), math.radians(147.29951), math.radians(171.762939)), False)
sketch14.addConstraint(Sketcher.Constraint("Coincident", 0, 2, 1, 1))
sketch14.addConstraint(Sketcher.Constraint("Coincident", 1, 2, 2, 1))
sketch14.addConstraint(Sketcher.Constraint("Coincident", 2, 2, 3, 1))
sketch14.addConstraint(Sketcher.Constraint("Coincident", 3, 2, 4, 1))
sketch14.addConstraint(Sketcher.Constraint("Coincident", 4, 2, 5, 1))
sketch14.addConstraint(Sketcher.Constraint("Coincident", 5, 2, 6, 1))
sketch14.addConstraint(Sketcher.Constraint("Coincident", 6, 2, 7, 1))
sketch14.addConstraint(Sketcher.Constraint("Coincident", 7, 2, 8, 1))
sketch14.addConstraint(Sketcher.Constraint("Coincident", 8, 2, 9, 1))
sketch14.addConstraint(Sketcher.Constraint("Coincident", 9, 2, 10, 2))
sketch14.addConstraint(Sketcher.Constraint("Coincident", 10, 1, 11, 1))
sketch14.addConstraint(Sketcher.Constraint("Coincident", 11, 2, 12, 1))
sketch14.addConstraint(Sketcher.Constraint("Coincident", 12, 2, 0, 1))
sketch14.addConstraint(Sketcher.Constraint("Coincident", 13, 2, 14, 1))
sketch14.addConstraint(Sketcher.Constraint("Coincident", 14, 2, 15, 1))
sketch14.addConstraint(Sketcher.Constraint("Coincident", 15, 2, 13, 1))
sketch14.addConstraint(Sketcher.Constraint("Coincident", 16, 2, 17, 1))
sketch14.addConstraint(Sketcher.Constraint("Coincident", 17, 2, 18, 1))
sketch14.addConstraint(Sketcher.Constraint("Coincident", 18, 2, 16, 1))
sketch14.addConstraint(Sketcher.Constraint("Horizontal", 0))
sketch14.addConstraint(Sketcher.Constraint("Vertical", 2))
sketch14.addConstraint(Sketcher.Constraint("Vertical", 4))
sketch14.addConstraint(Sketcher.Constraint("Horizontal", 5))
sketch14.addConstraint(Sketcher.Constraint("Vertical", 6))
sketch14.addConstraint(Sketcher.Constraint("Horizontal", 7))
sketch14.addConstraint(Sketcher.Constraint("Vertical", 8))
sketch14.addConstraint(Sketcher.Constraint("Horizontal", 9))
sketch14.addConstraint(Sketcher.Constraint("Horizontal", 11))
sketch14.addConstraint(Sketcher.Constraint("Vertical", 12))
sketch14.addConstraint(Sketcher.Constraint("Horizontal", 14))
sketch14.addConstraint(Sketcher.Constraint("Horizontal", 16))
sketch14.addConstraint(Sketcher.Constraint("Vertical", 17))
sketch14.addConstraint(Sketcher.Constraint("Coincident", 15, 3, 1, 3))
sketch14.addConstraint(Sketcher.Constraint("Coincident", 18, 3, 1, 3))
sketch14.addConstraint(Sketcher.Constraint("Equal", 1, 10))
sketch14.addConstraint(Sketcher.Constraint("Equal", 10, 15))
sketch14.addConstraint(Sketcher.Constraint("Equal", 15, 18))
sketch14.addConstraint(Sketcher.Constraint("Horizontal", 2, 2, 13, 2))
sketch14.addConstraint(Sketcher.Constraint("Horizontal", 7, 2, 15, 2))
sketch14.addConstraint(Sketcher.Constraint("Vertical", 6, 2, 9, 2))
sketch14.addConstraint(Sketcher.Constraint("Vertical", 0, 2, 10, 1))
sketch14.addConstraint(Sketcher.Constraint("Vertical", 4, 2, 15, 2))
sketch14.addConstraint(Sketcher.Constraint("Vertical", 13, 2, 16, 2))
sketch14.addConstraint(Sketcher.Constraint("Equal", 5, 8))
sketch14.addConstraint(Sketcher.Constraint("Equal", 8, 12))
sketch14.addConstraint(Sketcher.Constraint("Radius", 1, Q("45 mm")))
sketch14.addConstraint(Sketcher.Constraint("DistanceX", 5, 2, 5, 1, Q("5 mm")))
sketch14.addConstraint(Sketcher.Constraint("DistanceX", 7, 2, 7, 1, Q("10 mm")))
sketch14.addConstraint(Sketcher.Constraint("DistanceX", 14, 2, 14, 1, Q("7 mm")))
sketch14.addConstraint(Sketcher.Constraint("DistanceY", 2, 2, 2, 1, Q("25 mm")))
sketch14.addConstraint(Sketcher.Constraint("DistanceY", 4, 2, 4, 1, Q("20 mm")))
sketch14.addConstraint(Sketcher.Constraint("DistanceY", 6, 1, 6, 2, Q("23 mm")))
sketch14.addConstraint(Sketcher.Constraint("DistanceX", 0, 2, 0, 1, Q("13.5 mm")))
sketch14.addConstraint(Sketcher.Constraint("DistanceX", 13, 2, 2, 2, Q("3 mm")))
sketch14.addConstraint(Sketcher.Constraint("DistanceY", 13, 2, 16, 2, Q("3 mm")))
sketch14.addConstraint(Sketcher.Constraint("DistanceX", 0, 2, -1, 1, Q("5.0652 mm")))
sketch14.addConstraint(Sketcher.Constraint("DistanceY", -1, 1, 1, 3, Q("219.41264 mm")))
sketch14.addConstraint(Sketcher.Constraint("DistanceX", -1, 1, 10, 3, Q("14.429822 mm")))
sketch14.addConstraint(Sketcher.Constraint("DistanceX", 2, 2, -1, 1, Q("15.597369 mm")))
pad7 = body.newObject("PartDesign::Pad", "Pad006")
pad7.Profile = sketch14
pad7.Length = 5
pad7.Reversed = True
doc.recompute()

fillet3 = body.newObject("PartDesign::Fillet", "Fillet002")
fillet3.Base = (pad7, edges_at(pad7, [
    (-40.552, 217.914, 19),
    (8.435, 259.765, 19),
    (-40.552, 217.914, -3),
    (8.435, 259.765, -3),
]))
fillet3.Radius = 4

doc.recompute()
